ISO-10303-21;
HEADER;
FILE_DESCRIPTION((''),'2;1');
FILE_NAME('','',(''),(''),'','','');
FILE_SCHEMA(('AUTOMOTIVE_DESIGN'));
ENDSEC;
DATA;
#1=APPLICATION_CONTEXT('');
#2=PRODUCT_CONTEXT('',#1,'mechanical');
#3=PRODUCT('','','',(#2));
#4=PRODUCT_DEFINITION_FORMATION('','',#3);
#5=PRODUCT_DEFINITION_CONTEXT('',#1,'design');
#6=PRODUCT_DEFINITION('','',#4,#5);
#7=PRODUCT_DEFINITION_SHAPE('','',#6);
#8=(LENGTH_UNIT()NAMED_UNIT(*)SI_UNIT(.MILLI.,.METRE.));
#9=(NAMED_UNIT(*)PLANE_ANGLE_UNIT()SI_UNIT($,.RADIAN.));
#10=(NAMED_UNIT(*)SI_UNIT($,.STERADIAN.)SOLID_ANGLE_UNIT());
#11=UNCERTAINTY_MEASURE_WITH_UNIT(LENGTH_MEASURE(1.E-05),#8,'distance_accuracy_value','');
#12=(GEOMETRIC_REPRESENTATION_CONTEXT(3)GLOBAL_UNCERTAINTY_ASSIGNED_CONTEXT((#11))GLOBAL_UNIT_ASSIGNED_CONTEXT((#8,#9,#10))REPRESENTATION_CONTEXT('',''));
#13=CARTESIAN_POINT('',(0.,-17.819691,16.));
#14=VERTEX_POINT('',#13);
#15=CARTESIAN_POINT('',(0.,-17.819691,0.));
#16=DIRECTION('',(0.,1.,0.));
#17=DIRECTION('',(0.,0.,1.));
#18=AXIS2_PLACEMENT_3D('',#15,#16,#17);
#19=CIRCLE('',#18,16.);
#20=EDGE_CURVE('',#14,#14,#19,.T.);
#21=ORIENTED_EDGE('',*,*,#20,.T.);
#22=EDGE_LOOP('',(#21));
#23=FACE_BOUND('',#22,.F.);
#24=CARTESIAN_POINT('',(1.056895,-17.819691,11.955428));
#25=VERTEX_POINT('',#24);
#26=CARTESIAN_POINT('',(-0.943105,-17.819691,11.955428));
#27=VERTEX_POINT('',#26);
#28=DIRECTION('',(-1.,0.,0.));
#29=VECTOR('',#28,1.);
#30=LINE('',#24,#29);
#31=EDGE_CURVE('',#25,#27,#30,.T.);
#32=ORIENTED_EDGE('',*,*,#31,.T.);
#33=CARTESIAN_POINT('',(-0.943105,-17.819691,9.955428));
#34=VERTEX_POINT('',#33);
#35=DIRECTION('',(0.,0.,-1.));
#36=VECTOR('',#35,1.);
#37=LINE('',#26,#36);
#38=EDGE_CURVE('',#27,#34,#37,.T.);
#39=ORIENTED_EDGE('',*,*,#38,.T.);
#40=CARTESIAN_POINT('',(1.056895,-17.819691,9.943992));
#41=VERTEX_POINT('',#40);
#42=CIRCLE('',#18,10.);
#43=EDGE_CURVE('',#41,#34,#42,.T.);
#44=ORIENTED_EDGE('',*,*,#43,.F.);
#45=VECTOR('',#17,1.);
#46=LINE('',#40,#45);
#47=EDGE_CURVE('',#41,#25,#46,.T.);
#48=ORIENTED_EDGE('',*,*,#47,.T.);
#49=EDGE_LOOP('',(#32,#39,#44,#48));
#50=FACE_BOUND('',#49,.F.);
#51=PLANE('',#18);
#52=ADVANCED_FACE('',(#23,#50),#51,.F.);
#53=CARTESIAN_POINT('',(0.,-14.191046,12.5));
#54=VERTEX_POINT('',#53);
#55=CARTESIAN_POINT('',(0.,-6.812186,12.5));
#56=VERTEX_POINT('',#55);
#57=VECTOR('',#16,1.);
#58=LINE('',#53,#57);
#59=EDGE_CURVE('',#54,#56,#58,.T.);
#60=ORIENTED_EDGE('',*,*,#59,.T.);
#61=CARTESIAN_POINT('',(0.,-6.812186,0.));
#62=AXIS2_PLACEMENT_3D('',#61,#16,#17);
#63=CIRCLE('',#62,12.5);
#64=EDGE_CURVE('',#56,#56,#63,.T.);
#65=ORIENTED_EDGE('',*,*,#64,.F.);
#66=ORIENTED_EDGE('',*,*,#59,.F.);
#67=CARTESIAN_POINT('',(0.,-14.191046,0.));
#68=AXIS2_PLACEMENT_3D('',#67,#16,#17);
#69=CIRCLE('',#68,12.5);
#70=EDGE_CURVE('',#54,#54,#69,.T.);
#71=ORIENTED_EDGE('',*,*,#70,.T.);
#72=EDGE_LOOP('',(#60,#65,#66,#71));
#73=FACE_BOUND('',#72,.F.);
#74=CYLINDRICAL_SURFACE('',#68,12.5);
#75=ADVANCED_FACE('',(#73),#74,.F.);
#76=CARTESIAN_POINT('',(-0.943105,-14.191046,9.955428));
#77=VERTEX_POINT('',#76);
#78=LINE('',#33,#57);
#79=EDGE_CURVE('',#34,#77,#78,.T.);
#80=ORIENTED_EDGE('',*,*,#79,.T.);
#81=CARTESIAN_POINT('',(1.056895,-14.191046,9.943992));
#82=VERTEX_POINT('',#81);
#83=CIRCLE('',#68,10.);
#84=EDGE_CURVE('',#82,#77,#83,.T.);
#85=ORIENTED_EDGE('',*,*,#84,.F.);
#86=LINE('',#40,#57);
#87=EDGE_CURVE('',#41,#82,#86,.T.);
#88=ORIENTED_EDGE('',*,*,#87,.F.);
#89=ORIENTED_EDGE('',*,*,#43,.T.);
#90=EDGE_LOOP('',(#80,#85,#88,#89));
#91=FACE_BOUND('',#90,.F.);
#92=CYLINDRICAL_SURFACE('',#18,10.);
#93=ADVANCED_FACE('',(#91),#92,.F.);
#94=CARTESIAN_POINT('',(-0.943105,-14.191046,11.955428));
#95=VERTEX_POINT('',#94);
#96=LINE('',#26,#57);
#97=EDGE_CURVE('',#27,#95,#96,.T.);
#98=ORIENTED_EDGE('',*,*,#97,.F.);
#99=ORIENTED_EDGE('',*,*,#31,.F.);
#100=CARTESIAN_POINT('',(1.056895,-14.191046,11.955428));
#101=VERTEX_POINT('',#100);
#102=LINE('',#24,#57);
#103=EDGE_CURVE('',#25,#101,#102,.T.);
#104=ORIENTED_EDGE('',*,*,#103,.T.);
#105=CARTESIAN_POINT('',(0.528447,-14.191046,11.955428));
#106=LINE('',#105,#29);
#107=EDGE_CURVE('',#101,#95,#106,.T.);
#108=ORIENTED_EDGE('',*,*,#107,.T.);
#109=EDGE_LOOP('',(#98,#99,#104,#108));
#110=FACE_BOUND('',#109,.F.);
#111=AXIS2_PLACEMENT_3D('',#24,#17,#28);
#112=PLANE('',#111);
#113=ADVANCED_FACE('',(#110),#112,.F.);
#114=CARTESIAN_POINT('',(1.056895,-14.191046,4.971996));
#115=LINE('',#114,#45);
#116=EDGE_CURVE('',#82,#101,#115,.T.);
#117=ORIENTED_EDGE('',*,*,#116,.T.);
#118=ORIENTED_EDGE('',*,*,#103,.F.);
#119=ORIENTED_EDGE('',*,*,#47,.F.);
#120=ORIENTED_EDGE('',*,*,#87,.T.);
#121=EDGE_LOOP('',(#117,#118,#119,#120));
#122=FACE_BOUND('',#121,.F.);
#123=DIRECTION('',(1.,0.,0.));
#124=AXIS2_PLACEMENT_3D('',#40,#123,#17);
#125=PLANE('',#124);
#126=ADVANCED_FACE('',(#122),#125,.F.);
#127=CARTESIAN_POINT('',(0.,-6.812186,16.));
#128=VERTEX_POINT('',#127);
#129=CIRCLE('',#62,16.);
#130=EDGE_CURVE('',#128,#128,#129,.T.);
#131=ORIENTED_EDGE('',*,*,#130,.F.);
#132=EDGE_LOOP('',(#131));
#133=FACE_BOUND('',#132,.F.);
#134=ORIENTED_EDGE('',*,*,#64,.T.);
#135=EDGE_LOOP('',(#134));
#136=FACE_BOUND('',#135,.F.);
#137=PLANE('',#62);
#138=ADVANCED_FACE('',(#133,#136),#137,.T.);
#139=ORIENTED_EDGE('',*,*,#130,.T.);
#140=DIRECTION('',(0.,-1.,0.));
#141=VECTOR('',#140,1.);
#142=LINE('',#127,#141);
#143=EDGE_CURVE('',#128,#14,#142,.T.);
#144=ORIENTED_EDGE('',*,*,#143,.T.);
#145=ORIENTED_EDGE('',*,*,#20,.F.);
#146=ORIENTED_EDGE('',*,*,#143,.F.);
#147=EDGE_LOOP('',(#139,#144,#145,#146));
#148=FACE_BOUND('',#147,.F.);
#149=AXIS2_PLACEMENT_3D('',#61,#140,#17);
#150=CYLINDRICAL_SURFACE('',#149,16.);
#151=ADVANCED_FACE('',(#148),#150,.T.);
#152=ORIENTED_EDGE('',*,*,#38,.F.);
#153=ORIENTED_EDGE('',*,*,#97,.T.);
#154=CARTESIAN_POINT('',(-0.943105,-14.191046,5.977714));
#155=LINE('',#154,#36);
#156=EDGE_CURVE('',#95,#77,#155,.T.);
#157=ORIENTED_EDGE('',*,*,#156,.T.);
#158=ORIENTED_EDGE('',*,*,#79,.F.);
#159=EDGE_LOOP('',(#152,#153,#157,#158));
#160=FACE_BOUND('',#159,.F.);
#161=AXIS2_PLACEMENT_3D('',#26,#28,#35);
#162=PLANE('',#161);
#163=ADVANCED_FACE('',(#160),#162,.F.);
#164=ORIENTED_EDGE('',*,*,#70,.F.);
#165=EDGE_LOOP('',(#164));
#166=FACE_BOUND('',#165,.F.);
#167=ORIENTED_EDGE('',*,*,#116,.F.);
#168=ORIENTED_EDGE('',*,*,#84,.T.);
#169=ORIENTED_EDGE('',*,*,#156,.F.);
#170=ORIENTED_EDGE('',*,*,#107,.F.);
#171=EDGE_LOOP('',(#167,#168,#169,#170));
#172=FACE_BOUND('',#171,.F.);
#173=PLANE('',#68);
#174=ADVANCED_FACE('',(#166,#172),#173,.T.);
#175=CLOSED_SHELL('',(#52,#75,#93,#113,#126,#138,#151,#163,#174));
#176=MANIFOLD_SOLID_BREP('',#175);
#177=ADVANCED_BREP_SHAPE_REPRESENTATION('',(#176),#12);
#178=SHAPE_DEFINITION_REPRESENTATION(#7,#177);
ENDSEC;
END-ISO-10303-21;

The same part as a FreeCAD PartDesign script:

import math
import FreeCAD as App
import Part
import Sketcher
from FreeCAD import Vector

doc = App.newDocument("Part")
body = doc.addObject("PartDesign::Body", "Body")

# Sketch on YZ plane
sketch1 = doc.addObject("Sketcher::SketchObject", "Sketch")
body.addObject(sketch1)
sketch1.AttachmentSupport = (doc.YZ_Plane, [""])
sketch1.MapMode = "FlatFace"
sketch1.addGeometry(Part.LineSegment(Vector(-17.819691, 16, 0), Vector(-17.819691, 10, 0)), False)
sketch1.addGeometry(Part.LineSegment(Vector(-17.819691, 10, 0), Vector(-14.191046, 10, 0)), False)
sketch1.addGeometry(Part.LineSegment(Vector(-14.191046, 10, 0), Vector(-14.191046, 12.5, 0)), False)
sketch1.addGeometry(Part.LineSegment(Vector(-14.191046, 12.5, 0), Vector(-6.812186, 12.5, 0)), False)
sketch1.addGeometry(Part.LineSegment(Vector(-6.812186, 12.5, 0), Vector(-6.812186, 16, 0)), False)
sketch1.addGeometry(Part.LineSegment(Vector(-6.812186, 16, 0), Vector(-17.819691, 16, 0)), False)
sketch1.addConstraint(Sketcher.Constraint("Coincident", 0, 2, 1, 1))
sketch1.addConstraint(Sketcher.Constraint("Coincident", 1, 2, 2, 1))
sketch1.addConstraint(Sketcher.Constraint("Coincident", 2, 2, 3, 1))
sketch1.addConstraint(Sketcher.Constraint("Coincident", 3, 2, 4, 1))
sketch1.addConstraint(Sketcher.Constraint("Coincident", 4, 2, 5, 1))
sketch1.addConstraint(Sketcher.Constraint("Coincident", 5, 2, 0, 1))
sketch1.addConstraint(Sketcher.Constraint("Vertical", 0))
sketch1.addConstraint(Sketcher.Constraint("Horizontal", 1))
sketch1.addConstraint(Sketcher.Constraint("Vertical", 2))
sketch1.addConstraint(Sketcher.Constraint("Horizontal", 3))
sketch1.addConstraint(Sketcher.Constraint("Vertical", 4))
sketch1.addConstraint(Sketcher.Constraint("Horizontal", 5))
sketch1.addConstraint(Sketcher.Constraint("DistanceY", 0, 2, 0, 1, 6.0))
sketch1.addConstraint(Sketcher.Constraint("DistanceY", 2, 1, 2, 2, 2.5))
sketch1.addConstraint(Sketcher.Constraint("DistanceY", -1, 1, 0, 2, 10.0))
sketch1.addConstraint(Sketcher.Constraint("DistanceX", 3, 1, 3, 2, 7.37886))
sketch1.addConstraint(Sketcher.Constraint("DistanceX", 1, 1, 1, 2, 3.628645))
sketch1.addConstraint(Sketcher.Constraint("DistanceX", 0, 2, -1, 1, 17.819691))
revolution = doc.addObject("PartDesign::Revolution", "Revolution")
body.addObject(revolution)
revolution.Profile = sketch1
revolution.ReferenceAxis = (sketch1, ["H_Axis"])
revolution.Angle = 360

# Sketch on XZ plane
sketch2 = doc.addObject("Sketcher::SketchObject", "Sketch001")
body.addObject(sketch2)
sketch2.AttachmentSupport = (doc.XZ_Plane, [""])
sketch2.MapMode = "FlatFace"
sketch2.AttachmentOffset = App.Placement(Vector(0, 0, 17.819691), App.Rotation())
sketch2.addGeometry(Part.LineSegment(Vector(-0.943105, 11.955428, 0), Vector(-0.943105, 9.955428, 0)), False)
sketch2.addGeometry(Part.ArcOfCircle(Part.Circle(Vector(0, 0, 0), Vector(0, 0, 1), 10), math.radians(83.933108), math.radians(95.411637)), False)
sketch2.addGeometry(Part.LineSegment(Vector(1.056895, 9.943992, 0), Vector(1.056895, 11.955428, 0)), False)
sketch2.addGeometry(Part.LineSegment(Vector(1.056895, 11.955428, 0), Vector(-0.943105, 11.955428, 0)), False)
sketch2.addConstraint(Sketcher.Constraint("Coincident", 0, 2, 1, 2))
sketch2.addConstraint(Sketcher.Constraint("Coincident", 1, 1, 2, 1))
sketch2.addConstraint(Sketcher.Constraint("Coincident", 2, 2, 3, 1))
sketch2.addConstraint(Sketcher.Constraint("Coincident", 3, 2, 0, 1))
sketch2.addConstraint(Sketcher.Constraint("Vertical", 0))
sketch2.addConstraint(Sketcher.Constraint("Vertical", 2))
sketch2.addConstraint(Sketcher.Constraint("Horizontal", 3))
sketch2.addConstraint(Sketcher.Constraint("Coincident", 1, 3, -1, 1))
sketch2.addConstraint(Sketcher.Constraint("Equal", 3, 0))
sketch2.addConstraint(Sketcher.Constraint("Radius", 1, 10.0))
sketch2.addConstraint(Sketcher.Constraint("DistanceX", 3, 2, 3, 1, 2.0))
sketch2.addConstraint(Sketcher.Constraint("DistanceY", 2, 1, 2, 2, 2.011436))
pocket1 = doc.addObject("PartDesign::Pocket", "Pocket")
body.addObject(pocket1)
pocket1.Profile = sketch2
pocket1.Length = 25

doc.recompute()
